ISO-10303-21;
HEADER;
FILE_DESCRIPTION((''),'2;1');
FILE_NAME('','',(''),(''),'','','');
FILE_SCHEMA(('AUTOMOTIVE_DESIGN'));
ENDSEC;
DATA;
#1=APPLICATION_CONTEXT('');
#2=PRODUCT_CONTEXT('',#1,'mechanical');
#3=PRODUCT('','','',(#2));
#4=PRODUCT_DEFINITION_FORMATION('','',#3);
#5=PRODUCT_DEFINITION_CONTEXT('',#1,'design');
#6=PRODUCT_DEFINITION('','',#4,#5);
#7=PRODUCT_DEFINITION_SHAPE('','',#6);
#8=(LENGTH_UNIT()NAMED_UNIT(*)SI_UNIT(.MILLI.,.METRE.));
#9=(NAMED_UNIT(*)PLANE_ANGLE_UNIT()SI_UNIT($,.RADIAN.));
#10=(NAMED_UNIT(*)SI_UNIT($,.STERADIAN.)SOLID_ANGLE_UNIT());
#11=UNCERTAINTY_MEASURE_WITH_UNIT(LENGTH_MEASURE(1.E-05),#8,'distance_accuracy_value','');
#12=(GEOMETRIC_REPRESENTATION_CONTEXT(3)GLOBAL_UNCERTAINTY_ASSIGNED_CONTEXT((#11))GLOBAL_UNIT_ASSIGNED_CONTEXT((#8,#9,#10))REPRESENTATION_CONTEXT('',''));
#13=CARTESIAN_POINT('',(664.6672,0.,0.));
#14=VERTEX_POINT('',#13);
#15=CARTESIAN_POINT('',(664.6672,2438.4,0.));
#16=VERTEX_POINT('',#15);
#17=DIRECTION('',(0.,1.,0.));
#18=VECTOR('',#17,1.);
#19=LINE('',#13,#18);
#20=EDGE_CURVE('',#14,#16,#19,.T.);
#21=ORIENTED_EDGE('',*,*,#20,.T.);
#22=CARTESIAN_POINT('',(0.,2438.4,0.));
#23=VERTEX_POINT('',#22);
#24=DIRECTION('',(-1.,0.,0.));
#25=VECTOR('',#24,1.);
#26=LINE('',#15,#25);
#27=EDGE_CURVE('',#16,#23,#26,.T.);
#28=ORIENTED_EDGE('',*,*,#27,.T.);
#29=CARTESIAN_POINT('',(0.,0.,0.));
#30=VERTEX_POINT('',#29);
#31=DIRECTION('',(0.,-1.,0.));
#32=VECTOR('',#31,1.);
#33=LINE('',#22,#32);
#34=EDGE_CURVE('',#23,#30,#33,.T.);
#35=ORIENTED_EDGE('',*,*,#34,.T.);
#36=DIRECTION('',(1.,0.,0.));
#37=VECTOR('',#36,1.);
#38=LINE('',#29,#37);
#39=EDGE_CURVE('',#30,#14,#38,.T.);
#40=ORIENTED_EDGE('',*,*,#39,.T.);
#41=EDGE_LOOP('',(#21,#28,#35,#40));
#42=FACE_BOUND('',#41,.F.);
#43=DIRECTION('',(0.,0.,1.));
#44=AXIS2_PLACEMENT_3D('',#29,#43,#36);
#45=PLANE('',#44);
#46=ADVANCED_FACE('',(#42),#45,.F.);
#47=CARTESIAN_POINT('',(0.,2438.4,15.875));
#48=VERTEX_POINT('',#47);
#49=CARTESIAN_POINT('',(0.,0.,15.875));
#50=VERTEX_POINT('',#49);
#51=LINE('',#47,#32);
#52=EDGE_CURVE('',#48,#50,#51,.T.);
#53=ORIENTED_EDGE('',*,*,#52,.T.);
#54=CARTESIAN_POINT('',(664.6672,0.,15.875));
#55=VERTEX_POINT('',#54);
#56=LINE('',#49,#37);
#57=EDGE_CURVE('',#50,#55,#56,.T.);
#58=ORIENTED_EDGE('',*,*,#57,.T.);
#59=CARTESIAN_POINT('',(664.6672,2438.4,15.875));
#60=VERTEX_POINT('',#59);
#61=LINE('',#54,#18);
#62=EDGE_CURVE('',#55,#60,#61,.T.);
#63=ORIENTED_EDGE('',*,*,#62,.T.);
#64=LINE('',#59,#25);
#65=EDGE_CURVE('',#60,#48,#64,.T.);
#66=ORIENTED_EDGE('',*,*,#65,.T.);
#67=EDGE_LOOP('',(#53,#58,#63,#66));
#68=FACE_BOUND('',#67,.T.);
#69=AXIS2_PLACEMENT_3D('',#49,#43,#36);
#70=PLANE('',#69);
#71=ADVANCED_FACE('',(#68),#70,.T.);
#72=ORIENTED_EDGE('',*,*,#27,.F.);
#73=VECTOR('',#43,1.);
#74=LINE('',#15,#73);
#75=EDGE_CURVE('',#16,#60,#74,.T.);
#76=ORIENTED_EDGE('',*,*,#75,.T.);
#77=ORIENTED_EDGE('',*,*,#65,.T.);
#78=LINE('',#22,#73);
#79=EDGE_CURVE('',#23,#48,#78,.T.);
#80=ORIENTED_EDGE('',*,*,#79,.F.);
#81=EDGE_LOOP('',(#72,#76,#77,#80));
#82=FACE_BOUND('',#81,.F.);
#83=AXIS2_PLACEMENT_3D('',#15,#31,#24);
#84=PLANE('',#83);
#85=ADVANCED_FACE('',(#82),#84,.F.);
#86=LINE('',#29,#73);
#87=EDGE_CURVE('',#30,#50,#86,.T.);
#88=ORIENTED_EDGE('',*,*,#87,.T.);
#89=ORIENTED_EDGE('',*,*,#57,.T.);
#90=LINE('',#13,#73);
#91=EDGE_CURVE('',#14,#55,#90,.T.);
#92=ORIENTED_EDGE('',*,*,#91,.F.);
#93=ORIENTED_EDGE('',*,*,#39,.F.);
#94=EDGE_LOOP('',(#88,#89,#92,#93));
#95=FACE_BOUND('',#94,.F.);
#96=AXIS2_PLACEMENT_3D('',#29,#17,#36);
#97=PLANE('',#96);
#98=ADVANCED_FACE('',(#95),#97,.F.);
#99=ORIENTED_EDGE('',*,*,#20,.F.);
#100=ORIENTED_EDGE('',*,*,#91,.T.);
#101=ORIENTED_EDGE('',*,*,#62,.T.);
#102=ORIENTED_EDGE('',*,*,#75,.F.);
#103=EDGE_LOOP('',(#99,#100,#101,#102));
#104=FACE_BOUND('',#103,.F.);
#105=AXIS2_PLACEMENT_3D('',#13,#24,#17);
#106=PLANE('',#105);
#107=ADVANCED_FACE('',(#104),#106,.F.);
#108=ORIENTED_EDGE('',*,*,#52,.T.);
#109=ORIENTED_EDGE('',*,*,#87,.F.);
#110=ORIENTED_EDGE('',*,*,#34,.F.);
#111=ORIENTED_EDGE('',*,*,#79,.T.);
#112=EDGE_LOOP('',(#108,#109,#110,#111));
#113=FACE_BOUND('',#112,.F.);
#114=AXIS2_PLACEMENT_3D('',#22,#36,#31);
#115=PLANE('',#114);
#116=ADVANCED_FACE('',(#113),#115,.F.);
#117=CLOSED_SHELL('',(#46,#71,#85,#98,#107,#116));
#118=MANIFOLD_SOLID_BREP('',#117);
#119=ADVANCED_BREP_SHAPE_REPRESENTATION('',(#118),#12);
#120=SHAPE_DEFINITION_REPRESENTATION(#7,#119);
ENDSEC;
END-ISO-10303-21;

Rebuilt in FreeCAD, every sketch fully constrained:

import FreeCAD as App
import Part
import Sketcher

V = App.Vector
Q = App.Units.Quantity

doc = App.newDocument("Part")
body = doc.addObject("PartDesign::Body", "Body")

# Sketch on XY plane
sketch1 = doc.addObject("Sketcher::SketchObject", "Sketch")
body.addObject(sketch1)
sketch1.AttachmentSupport = (doc.XY_Plane, [""])
sketch1.MapMode = "FlatFace"
sketch1.addGeometry(Part.LineSegment(V(0, 2438.4, 0), V(0, 0, 0)), False)
sketch1.addGeometry(Part.LineSegment(V(0, 0, 0), V(664.6672, 0, 0)), False)
sketch1.addGeometry(Part.LineSegment(V(664.6672, 0, 0), V(664.6672, 2438.4, 0)), False)
sketch1.addGeometry(Part.LineSegment(V(664.6672, 2438.4, 0), V(0, 2438.4, 0)), False)
sketch1.addConstraint(Sketcher.Constraint("Coincident", 0, 2, 1, 1))
sketch1.addConstraint(Sketcher.Constraint("Coincident", 1, 2, 2, 1))
sketch1.addConstraint(Sketcher.Constraint("Coincident", 2, 2, 3, 1))
sketch1.addConstraint(Sketcher.Constraint("Coincident", 3, 2, 0, 1))
sketch1.addConstraint(Sketcher.Constraint("Vertical", 0))
sketch1.addConstraint(Sketcher.Constraint("Horizontal", 1))
sketch1.addConstraint(Sketcher.Constraint("Vertical", 2))
sketch1.addConstraint(Sketcher.Constraint("Horizontal", 3))
sketch1.addConstraint(Sketcher.Constraint("Coincident", 0, 2, -1, 1))
sketch1.addConstraint(Sketcher.Constraint("DistanceY", 0, 2, 0, 1, Q("96 in")))
sketch1.addConstraint(Sketcher.Constraint("DistanceX", 1, 1, 1, 2, Q("26.168 in")))
pad1 = doc.addObject("PartDesign::Pad", "Pad")
body.addObject(pad1)
pad1.Profile = sketch1
pad1.Length = Q("0.625 in")

doc.recompute()
